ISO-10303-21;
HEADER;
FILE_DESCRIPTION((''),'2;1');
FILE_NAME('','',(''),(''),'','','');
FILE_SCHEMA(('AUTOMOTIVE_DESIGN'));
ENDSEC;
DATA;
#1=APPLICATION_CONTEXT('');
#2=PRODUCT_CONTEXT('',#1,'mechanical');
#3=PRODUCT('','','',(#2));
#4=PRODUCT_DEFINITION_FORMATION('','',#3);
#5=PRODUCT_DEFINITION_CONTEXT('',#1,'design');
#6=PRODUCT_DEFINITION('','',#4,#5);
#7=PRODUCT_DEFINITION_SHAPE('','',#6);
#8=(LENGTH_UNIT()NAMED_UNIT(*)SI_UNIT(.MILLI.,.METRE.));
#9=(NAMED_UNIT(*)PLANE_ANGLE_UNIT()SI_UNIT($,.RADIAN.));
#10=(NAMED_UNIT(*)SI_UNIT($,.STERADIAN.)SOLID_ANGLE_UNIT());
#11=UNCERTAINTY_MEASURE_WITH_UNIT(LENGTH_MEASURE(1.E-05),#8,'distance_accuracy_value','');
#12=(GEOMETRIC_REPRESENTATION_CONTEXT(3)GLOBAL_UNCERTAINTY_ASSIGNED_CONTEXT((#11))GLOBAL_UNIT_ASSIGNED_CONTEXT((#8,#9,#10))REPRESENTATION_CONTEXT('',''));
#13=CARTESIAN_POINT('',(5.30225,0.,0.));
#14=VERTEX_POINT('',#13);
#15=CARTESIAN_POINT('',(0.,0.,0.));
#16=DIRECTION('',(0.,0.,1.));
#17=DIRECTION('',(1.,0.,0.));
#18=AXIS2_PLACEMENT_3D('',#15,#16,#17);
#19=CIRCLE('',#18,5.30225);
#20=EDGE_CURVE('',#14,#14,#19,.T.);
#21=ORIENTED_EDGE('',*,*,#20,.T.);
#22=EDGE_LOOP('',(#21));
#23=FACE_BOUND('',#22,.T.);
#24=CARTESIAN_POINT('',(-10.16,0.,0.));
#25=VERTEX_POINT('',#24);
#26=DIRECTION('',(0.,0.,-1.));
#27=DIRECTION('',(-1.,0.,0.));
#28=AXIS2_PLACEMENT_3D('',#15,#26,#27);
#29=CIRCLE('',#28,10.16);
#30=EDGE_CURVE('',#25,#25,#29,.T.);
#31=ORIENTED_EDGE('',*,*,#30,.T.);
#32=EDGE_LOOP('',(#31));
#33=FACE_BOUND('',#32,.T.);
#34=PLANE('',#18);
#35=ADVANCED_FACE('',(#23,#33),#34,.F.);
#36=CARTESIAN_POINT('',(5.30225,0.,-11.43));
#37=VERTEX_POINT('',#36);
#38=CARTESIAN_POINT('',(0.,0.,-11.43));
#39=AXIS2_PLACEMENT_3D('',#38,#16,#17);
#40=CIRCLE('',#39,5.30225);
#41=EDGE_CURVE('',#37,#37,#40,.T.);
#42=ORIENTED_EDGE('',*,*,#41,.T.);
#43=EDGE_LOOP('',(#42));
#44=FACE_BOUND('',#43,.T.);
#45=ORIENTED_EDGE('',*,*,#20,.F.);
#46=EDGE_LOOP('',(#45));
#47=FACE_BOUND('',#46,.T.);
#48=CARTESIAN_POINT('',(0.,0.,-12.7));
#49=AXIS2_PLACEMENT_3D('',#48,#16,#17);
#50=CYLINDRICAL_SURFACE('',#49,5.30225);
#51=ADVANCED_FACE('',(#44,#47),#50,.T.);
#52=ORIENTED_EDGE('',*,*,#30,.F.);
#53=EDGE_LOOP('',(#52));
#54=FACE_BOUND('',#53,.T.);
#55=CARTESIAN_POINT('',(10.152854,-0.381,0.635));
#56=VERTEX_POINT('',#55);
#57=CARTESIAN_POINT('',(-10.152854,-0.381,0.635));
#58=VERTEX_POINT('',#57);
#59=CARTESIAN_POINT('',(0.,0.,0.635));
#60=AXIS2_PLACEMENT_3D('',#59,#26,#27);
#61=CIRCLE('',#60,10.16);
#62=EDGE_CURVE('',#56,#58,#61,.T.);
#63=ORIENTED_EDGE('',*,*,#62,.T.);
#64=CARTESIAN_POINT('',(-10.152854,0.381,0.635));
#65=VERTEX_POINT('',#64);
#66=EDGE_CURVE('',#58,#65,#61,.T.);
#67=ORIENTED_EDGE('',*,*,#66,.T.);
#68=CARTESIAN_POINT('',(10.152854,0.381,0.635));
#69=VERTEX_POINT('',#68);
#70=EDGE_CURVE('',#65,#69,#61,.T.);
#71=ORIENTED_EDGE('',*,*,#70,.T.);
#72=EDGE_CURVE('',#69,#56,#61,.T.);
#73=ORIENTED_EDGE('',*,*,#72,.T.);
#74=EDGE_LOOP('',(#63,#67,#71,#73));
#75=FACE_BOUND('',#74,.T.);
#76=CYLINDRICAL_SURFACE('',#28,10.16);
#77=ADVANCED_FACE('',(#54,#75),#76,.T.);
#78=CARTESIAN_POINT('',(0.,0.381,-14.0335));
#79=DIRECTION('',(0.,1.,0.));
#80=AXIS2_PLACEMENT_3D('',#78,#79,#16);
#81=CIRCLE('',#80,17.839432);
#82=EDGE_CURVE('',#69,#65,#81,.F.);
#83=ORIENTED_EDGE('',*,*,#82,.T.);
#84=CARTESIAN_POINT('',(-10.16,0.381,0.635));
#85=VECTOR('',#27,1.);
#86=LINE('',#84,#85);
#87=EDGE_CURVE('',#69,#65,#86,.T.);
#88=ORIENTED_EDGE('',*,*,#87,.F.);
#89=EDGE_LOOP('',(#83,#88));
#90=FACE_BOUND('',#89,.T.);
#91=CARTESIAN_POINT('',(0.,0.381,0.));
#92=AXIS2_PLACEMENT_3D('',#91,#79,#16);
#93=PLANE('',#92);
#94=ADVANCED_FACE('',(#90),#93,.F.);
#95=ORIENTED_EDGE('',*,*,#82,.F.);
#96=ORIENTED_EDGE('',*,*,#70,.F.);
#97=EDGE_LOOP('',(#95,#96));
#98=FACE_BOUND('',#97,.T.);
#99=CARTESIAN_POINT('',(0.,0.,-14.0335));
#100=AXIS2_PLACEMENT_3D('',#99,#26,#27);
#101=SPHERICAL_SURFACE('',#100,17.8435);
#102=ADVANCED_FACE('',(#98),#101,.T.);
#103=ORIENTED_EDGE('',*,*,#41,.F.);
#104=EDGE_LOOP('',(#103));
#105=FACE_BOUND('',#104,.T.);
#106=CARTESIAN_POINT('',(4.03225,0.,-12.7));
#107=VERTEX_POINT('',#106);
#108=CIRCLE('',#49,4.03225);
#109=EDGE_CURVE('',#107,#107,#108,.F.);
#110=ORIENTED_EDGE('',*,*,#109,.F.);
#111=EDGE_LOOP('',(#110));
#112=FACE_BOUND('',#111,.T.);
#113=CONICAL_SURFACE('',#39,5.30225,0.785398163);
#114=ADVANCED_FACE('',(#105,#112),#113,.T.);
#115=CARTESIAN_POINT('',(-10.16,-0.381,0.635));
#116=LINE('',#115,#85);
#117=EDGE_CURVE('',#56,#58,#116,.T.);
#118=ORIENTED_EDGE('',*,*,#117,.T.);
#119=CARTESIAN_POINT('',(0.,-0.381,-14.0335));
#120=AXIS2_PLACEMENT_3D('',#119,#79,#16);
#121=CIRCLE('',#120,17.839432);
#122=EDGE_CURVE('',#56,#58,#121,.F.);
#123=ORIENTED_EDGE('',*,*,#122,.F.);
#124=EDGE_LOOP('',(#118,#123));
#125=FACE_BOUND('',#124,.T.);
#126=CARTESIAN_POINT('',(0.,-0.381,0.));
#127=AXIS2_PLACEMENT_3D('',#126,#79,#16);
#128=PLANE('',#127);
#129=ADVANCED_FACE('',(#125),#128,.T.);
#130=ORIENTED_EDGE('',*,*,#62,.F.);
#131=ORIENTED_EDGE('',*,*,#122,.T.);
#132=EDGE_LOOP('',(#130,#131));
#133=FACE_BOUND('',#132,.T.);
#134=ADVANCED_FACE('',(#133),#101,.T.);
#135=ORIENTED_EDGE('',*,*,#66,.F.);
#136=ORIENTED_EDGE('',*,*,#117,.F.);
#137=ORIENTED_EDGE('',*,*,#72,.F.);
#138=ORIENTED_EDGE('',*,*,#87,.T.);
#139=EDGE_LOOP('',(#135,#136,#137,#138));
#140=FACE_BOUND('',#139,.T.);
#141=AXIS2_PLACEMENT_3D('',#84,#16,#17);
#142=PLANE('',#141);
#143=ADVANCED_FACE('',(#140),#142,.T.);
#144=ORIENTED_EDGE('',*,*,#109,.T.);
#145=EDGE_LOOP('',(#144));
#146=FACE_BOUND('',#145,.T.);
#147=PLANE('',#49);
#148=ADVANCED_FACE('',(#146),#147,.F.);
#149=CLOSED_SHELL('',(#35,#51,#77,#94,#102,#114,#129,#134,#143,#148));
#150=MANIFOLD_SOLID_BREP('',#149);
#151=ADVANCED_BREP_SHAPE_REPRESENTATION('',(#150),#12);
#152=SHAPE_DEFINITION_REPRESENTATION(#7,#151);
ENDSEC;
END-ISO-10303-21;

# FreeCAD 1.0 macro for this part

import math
import FreeCAD as App
import Part
import Sketcher
Q = App.Units.Quantity


def edges_at(feature, points):
    """Names of the edges that pass closest to the given points."""
    edges = feature.Shape.Edges
    near = lambda p: min(range(len(edges)), key=lambda i: edges[i].distToShape(Part.Vertex(*p))[0])
    return sorted({f"Edge{near(p) + 1}" for p in points})


def add_polygon(sketch, points):
    """Adds a closed chain of lines whose ends are joined by coincident constraints."""
    first, n = sketch.GeometryCount, len(points)
    for a, b in zip(points, points[1:] + points[:1]):
        sketch.addGeometry(Part.LineSegment(App.Vector(*a, 0), App.Vector(*b, 0)), False)
    for i in range(n):
        sketch.addConstraint(Sketcher.Constraint("Coincident", first + i, 2, first + (i + 1) % n, 1))

doc = App.newDocument("Part")
body = doc.addObject("PartDesign::Body", "Body")

sketch1 = body.newObject("Sketcher::SketchObject", "Sketch")
sketch1.AttachmentSupport = (doc.getObject("XY_Plane"), [""])
sketch1.MapMode = "FlatFace"
sketch1.addGeometry(Part.Circle(App.Vector(0, 0, 0), App.Vector(0, 0, 1), 5), False)
sketch1.addConstraint([
    Sketcher.Constraint("Coincident", 0, 3, -1, 1),
    Sketcher.Constraint("Diameter", 0, Q("0.4175 in")),
])
pad1 = body.newObject("PartDesign::Pad", "Pad")
pad1.Profile = sketch1
pad1.Length = Q("0.5 in")
pad1.Reversed = True

sketch2 = body.newObject("Sketcher::SketchObject", "Sketch001")
sketch2.AttachmentSupport = (doc.getObject("XZ_Plane"), [""])
sketch2.MapMode = "FlatFace"
sketch2.addGeometry([
    Part.LineSegment(App.Vector(-10.2, 0, 0), App.Vector(-10.2, 0.6, 0)),
    Part.ArcOfCircle(Part.Circle(App.Vector(0, -14, 0), App.Vector(0, 0, 1), 17.8), math.radians(90), math.radians(125)),
    Part.LineSegment(App.Vector(0, 3.8, 0), App.Vector(0, 0, 0)),
    Part.LineSegment(App.Vector(0, 0, 0), App.Vector(-10.2, 0, 0)),
], False)
sketch2.addConstraint([
    Sketcher.Constraint("Coincident", 0, 2, 1, 2),
    Sketcher.Constraint("Coincident", 1, 1, 2, 1),
    Sketcher.Constraint("Coincident", 2, 2, 3, 1),
    Sketcher.Constraint("Coincident", 3, 2, 0, 1),
    Sketcher.Constraint("Vertical", 0),
    Sketcher.Constraint("Vertical", 2),
    Sketcher.Constraint("Horizontal", 3),
    Sketcher.Constraint("Coincident", 2, 2, -1, 1),
    Sketcher.Constraint("PointOnObject", 1, 3, -2),
    Sketcher.Constraint("DistanceX", 3, 2, 3, 1, Q("0.4 in")),
    Sketcher.Constraint("DistanceY", 2, 2, 2, 1, Q("0.15 in")),
    Sketcher.Constraint("Radius", 1, Q("0.7025 in")),
])
revolution = body.newObject("PartDesign::Revolution", "Revolution")
revolution.Profile = sketch2
revolution.ReferenceAxis = (sketch2, ["V_Axis"])
revolution.Angle = 360

sketch3 = body.newObject("Sketcher::SketchObject", "Sketch002")
sketch3.AttachmentSupport = (doc.getObject("XZ_Plane"), [""])
sketch3.MapMode = "FlatFace"
add_polygon(sketch3, [(-10, 1), (-10, 6), (10, 6), (10, 1)])
sketch3.addConstraint([
    Sketcher.Constraint("Vertical", 0),
    Sketcher.Constraint("Horizontal", 1),
    Sketcher.Constraint("Vertical", 2),
    Sketcher.Constraint("Horizontal", 3),
    Sketcher.Constraint("DistanceX", 1, 1, 1, 2, Q("0.8 in")),
    Sketcher.Constraint("DistanceY", 0, 1, 0, 2, Q("0.2 in")),
    Sketcher.Constraint("DistanceX", 0, 2, -1, 1, Q("0.4 in")),
    Sketcher.Constraint("DistanceY", -1, 1, 0, 2, Q("0.225 in")),
])
pocket1 = body.newObject("PartDesign::Pocket", "Pocket")
pocket1.Profile = sketch3
pocket1.Type = "TwoLengths"
pocket1.Length = Q("0.015 in")
pocket1.Length2 = Q("0.015 in")
doc.recompute()

chamfer = body.newObject("PartDesign::Chamfer", "Chamfer")
chamfer.Base = (pocket1, edges_at(pocket1, [(-5.302, 0, -12.7)]))
chamfer.Size = Q("0.05 in")

doc.recompute()
